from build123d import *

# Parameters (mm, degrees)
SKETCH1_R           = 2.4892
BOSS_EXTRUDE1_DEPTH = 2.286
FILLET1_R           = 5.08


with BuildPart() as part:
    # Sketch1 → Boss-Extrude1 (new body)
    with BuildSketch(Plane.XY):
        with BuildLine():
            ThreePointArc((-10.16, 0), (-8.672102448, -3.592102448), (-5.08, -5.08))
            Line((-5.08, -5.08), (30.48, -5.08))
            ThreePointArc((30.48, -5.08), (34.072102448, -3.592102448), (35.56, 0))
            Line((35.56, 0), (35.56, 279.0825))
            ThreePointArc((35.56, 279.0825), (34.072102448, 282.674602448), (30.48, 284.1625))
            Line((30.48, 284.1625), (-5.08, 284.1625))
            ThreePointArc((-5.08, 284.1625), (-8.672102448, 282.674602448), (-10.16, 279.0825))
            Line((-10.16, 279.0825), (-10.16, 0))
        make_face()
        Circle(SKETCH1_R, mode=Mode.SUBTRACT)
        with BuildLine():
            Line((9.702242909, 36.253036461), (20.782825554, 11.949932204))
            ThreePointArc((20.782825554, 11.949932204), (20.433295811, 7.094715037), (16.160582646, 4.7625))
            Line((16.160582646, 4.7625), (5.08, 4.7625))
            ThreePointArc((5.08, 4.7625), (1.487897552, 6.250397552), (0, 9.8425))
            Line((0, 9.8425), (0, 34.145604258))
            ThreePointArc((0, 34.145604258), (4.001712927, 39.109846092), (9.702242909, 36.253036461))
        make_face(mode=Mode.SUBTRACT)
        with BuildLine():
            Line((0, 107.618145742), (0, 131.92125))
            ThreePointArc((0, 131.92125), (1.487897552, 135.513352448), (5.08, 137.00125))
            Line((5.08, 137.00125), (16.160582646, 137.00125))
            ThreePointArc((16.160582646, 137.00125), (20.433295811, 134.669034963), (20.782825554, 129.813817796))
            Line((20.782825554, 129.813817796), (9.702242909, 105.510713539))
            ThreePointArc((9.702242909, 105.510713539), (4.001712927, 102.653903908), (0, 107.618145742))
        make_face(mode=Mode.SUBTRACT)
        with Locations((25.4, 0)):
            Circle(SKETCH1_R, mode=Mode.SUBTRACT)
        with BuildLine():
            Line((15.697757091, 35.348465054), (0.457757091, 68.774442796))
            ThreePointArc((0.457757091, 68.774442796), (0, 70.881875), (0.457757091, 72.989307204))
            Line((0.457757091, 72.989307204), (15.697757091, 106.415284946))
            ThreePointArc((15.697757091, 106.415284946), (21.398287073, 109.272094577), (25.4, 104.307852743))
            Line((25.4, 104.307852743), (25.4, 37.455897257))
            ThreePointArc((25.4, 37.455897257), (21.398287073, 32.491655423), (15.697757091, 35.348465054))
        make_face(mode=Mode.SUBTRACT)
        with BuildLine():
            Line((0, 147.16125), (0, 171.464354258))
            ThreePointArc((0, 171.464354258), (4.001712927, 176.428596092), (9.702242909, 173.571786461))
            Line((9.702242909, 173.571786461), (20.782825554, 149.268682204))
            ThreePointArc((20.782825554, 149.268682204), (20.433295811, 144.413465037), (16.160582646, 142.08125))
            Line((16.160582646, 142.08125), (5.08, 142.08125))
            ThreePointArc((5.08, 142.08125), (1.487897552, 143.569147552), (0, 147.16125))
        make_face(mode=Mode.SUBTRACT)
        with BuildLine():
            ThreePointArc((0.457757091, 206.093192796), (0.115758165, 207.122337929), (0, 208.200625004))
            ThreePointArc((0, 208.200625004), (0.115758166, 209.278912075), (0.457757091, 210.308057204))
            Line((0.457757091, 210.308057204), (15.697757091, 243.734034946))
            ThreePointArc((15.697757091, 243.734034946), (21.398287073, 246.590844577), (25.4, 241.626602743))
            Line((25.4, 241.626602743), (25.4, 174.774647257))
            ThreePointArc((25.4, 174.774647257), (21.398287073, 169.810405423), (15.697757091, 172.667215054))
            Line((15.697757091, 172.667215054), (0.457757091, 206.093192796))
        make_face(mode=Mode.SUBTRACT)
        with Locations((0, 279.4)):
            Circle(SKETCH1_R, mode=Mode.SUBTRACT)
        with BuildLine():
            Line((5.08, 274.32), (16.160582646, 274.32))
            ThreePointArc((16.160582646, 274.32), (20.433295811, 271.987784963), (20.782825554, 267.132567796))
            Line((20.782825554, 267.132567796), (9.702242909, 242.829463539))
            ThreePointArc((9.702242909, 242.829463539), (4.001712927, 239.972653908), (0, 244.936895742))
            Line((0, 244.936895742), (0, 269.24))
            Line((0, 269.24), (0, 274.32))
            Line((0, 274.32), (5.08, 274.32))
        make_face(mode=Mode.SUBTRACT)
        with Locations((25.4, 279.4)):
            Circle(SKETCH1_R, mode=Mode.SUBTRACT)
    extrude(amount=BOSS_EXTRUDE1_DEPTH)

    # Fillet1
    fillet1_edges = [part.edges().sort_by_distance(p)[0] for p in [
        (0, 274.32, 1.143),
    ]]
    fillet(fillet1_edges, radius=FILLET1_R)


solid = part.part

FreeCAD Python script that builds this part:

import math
import FreeCAD as App
import Part
import Sketcher

V = App.Vector
Q = App.Units.Quantity


def edges_at(feature, points):
    """Names of the edges that pass closest to the given points."""
    edges = feature.Shape.Edges
    near = lambda p: min(range(len(edges)), key=lambda i: edges[i].distToShape(Part.Vertex(*p))[0])
    return sorted({f"Edge{near(p) + 1}" for p in points})

doc = App.newDocument("Part")
body = doc.addObject("PartDesign::Body", "Body")

# Sketch on XY plane
sketch1 = body.newObject("Sketcher::SketchObject", "Sketch")
sketch1.AttachmentSupport = (doc.getObject("XY_Plane"), [""])
sketch1.MapMode = "FlatFace"
sketch1.addGeometry(Part.ArcOfCircle(Part.Circle(V(-5.1, 0, 0), V(0, 0, 1), 5.1), math.radians(-180), math.radians(-90)), False)
sketch1.addGeometry(Part.LineSegment(V(-5.1, -5.1, 0), V(30.5, -5.1, 0)), False)
sketch1.addGeometry(Part.ArcOfCircle(Part.Circle(V(30.5, 0, 0), V(0, 0, 1), 5.1), math.radians(-90), math.radians(0)), False)
sketch1.addGeometry(Part.LineSegment(V(35.6, 0, 0), V(35.6, 279.1, 0)), False)
sketch1.addGeometry(Part.ArcOfCircle(Part.Circle(V(30.5, 279.1, 0), V(0, 0, 1), 5.1), math.radians(0), math.radians(90)), False)
sketch1.addGeometry(Part.LineSegment(V(30.5, 284.2, 0), V(-5.1, 284.2, 0)), False)
sketch1.addGeometry(Part.ArcOfCircle(Part.Circle(V(-5.1, 279.1, 0), V(0, 0, 1), 5.1), math.radians(90), math.radians(180)), False)
sketch1.addGeometry(Part.LineSegment(V(-10.2, 279.1, 0), V(-10.2, 0, 0)), False)
sketch1.addGeometry(Part.Circle(V(0, 0, 0), V(0, 0, 1), 2.5), False)
sketch1.addGeometry(Part.ArcOfCircle(Part.Circle(V(5.1, 34.1, 0), V(0, 0, 1), 5.1), math.radians(25), math.radians(180)), False)
sketch1.addGeometry(Part.LineSegment(V(9.7, 36.3, 0), V(20.8, 11.9, 0)), False)
sketch1.addGeometry(Part.ArcOfCircle(Part.Circle(V(16.2, 9.8, 0), V(0, 0, 1), 5.1), math.radians(-90), math.radians(25)), False)
sketch1.addGeometry(Part.LineSegment(V(16.2, 4.8, 0), V(5.1, 4.8, 0)), False)
sketch1.addGeometry(Part.ArcOfCircle(Part.Circle(V(5.1, 9.8, 0), V(0, 0, 1), 5.1), math.radians(-180), math.radians(-90)), False)
sketch1.addGeometry(Part.LineSegment(V(0, 9.8, 0), V(0, 34.1, 0)), False)
sketch1.addGeometry(Part.ArcOfCircle(Part.Circle(V(5.1, 107.6, 0), V(0, 0, 1), 5.1), math.radians(180), math.radians(335)), False)
sketch1.addGeometry(Part.LineSegment(V(0, 107.6, 0), V(0, 131.9, 0)), False)
sketch1.addGeometry(Part.ArcOfCircle(Part.Circle(V(5.1, 131.9, 0), V(0, 0, 1), 5.1), math.radians(90), math.radians(180)), False)
sketch1.addGeometry(Part.LineSegment(V(5.1, 137, 0), V(16.2, 137, 0)), False)
sketch1.addGeometry(Part.ArcOfCircle(Part.Circle(V(16.2, 131.9, 0), V(0, 0, 1), 5.1), math.radians(-25), math.radians(90)), False)
sketch1.addGeometry(Part.LineSegment(V(20.8, 129.8, 0), V(9.7, 105.5, 0)), False)
sketch1.addGeometry(Part.Circle(V(25.4, 0, 0), V(0, 0, 1), 2.5), False)
sketch1.addGeometry(Part.ArcOfCircle(Part.Circle(V(20.3, 37.5, 0), V(0, 0, 1), 5.1), math.radians(-155), math.radians(0)), False)
sketch1.addGeometry(Part.LineSegment(V(15.7, 35.3, 0), V(0.5, 68.8, 0)), False)
sketch1.addGeometry(Part.ArcOfCircle(Part.Circle(V(5.1, 70.9, 0), V(0, 0, 1), 5.1), math.radians(155), math.radians(205)), False)
sketch1.addGeometry(Part.LineSegment(V(0.5, 73, 0), V(15.7, 106.4, 0)), False)
sketch1.addGeometry(Part.ArcOfCircle(Part.Circle(V(20.3, 104.3, 0), V(0, 0, 1), 5.1), math.radians(0), math.radians(155)), False)
sketch1.addGeometry(Part.LineSegment(V(25.4, 104.3, 0), V(25.4, 37.5, 0)), False)
sketch1.addGeometry(Part.ArcOfCircle(Part.Circle(V(5.1, 147.2, 0), V(0, 0, 1), 5.1), math.radians(-180), math.radians(-90)), False)
sketch1.addGeometry(Part.LineSegment(V(0, 147.2, 0), V(0, 171.5, 0)), False)
sketch1.addGeometry(Part.ArcOfCircle(Part.Circle(V(5.1, 171.5, 0), V(0, 0, 1), 5.1), math.radians(25), math.radians(180)), False)
sketch1.addGeometry(Part.LineSegment(V(9.7, 173.6, 0), V(20.8, 149.3, 0)), False)
sketch1.addGeometry(Part.ArcOfCircle(Part.Circle(V(16.2, 147.2, 0), V(0, 0, 1), 5.1), math.radians(-90), math.radians(25)), False)
sketch1.addGeometry(Part.LineSegment(V(16.2, 142.1, 0), V(5.1, 142.1, 0)), False)
sketch1.addGeometry(Part.Circle(V(0, 279.4, 0), V(0, 0, 1), 2.5), False)
sketch1.addGeometry(Part.LineSegment(V(0, 274.3, 0), V(16.2, 274.3, 0)), False)
sketch1.addGeometry(Part.ArcOfCircle(Part.Circle(V(16.2, 269.2, 0), V(0, 0, 1), 5.1), math.radians(-25), math.radians(90)), False)
sketch1.addGeometry(Part.LineSegment(V(20.8, 267.1, 0), V(9.7, 242.8, 0)), False)
sketch1.addGeometry(Part.ArcOfCircle(Part.Circle(V(5.1, 244.9, 0), V(0, 0, 1), 5.1), math.radians(180), math.radians(335)), False)
sketch1.addGeometry(Part.LineSegment(V(0, 244.9, 0), V(0, 274.3, 0)), False)
sketch1.addGeometry(Part.LineSegment(V(15.7, 172.7, 0), V(0.5, 206.1, 0)), False)
sketch1.addGeometry(Part.ArcOfCircle(Part.Circle(V(5.1, 208.2, 0), V(0, 0, 1), 5.1), math.radians(180), math.radians(205)), False)
sketch1.addGeometry(Part.ArcOfCircle(Part.Circle(V(5.1, 208.2, 0), V(0, 0, 1), 5.1), math.radians(155), math.radians(180)), False)
sketch1.addGeometry(Part.LineSegment(V(0.5, 210.3, 0), V(15.7, 243.7, 0)), False)
sketch1.addGeometry(Part.ArcOfCircle(Part.Circle(V(20.3, 241.6, 0), V(0, 0, 1), 5.1), math.radians(0), math.radians(155)), False)
sketch1.addGeometry(Part.LineSegment(V(25.4, 241.6, 0), V(25.4, 174.8, 0)), False)
sketch1.addGeometry(Part.ArcOfCircle(Part.Circle(V(20.3, 174.8, 0), V(0, 0, 1), 5.1), math.radians(-155), math.radians(0)), False)
sketch1.addGeometry(Part.Circle(V(25.4, 279.4, 0), V(0, 0, 1), 2.5), False)
sketch1.addConstraint(Sketcher.Constraint("Tangent", 0, 2, 1, 1))
sketch1.addConstraint(Sketcher.Constraint("Tangent", 1, 2, 2, 1))
sketch1.addConstraint(Sketcher.Constraint("Tangent", 2, 2, 3, 1))
sketch1.addConstraint(Sketcher.Constraint("Tangent", 3, 2, 4, 1))
sketch1.addConstraint(Sketcher.Constraint("Tangent", 4, 2, 5, 1))
sketch1.addConstraint(Sketcher.Constraint("Tangent", 5, 2, 6, 1))
sketch1.addConstraint(Sketcher.Constraint("Tangent", 6, 2, 7, 1))
sketch1.addConstraint(Sketcher.Constraint("Tangent", 7, 2, 0, 1))
sketch1.addConstraint(Sketcher.Constraint("Tangent", 9, 1, 10, 1))
sketch1.addConstraint(Sketcher.Constraint("Tangent", 10, 2, 11, 2))
sketch1.addConstraint(Sketcher.Constraint("Tangent", 11, 1, 12, 1))
sketch1.addConstraint(Sketcher.Constraint("Tangent", 12, 2, 13, 2))
sketch1.addConstraint(Sketcher.Constraint("Tangent", 13, 1, 14, 1))
sketch1.addConstraint(Sketcher.Constraint("Tangent", 14, 2, 9, 2))
sketch1.addConstraint(Sketcher.Constraint("Tangent", 15, 1, 16, 1))
sketch1.addConstraint(Sketcher.Constraint("Tangent", 16, 2, 17, 2))
sketch1.addConstraint(Sketcher.Constraint("Tangent", 17, 1, 18, 1))
sketch1.addConstraint(Sketcher.Constraint("Tangent", 18, 2, 19, 2))
sketch1.addConstraint(Sketcher.Constraint("Tangent", 19, 1, 20, 1))
sketch1.addConstraint(Sketcher.Constraint("Tangent", 20, 2, 15, 2))
sketch1.addConstraint(Sketcher.Constraint("Tangent", 22, 1, 23, 1))
sketch1.addConstraint(Sketcher.Constraint("Tangent", 23, 2, 24, 2))
sketch1.addConstraint(Sketcher.Constraint("Tangent", 24, 1, 25, 1))
sketch1.addConstraint(Sketcher.Constraint("Tangent", 25, 2, 26, 2))
sketch1.addConstraint(Sketcher.Constraint("Tangent", 26, 1, 27, 1))
sketch1.addConstraint(Sketcher.Constraint("Tangent", 27, 2, 22, 2))
sketch1.addConstraint(Sketcher.Constraint("Tangent", 28, 1, 29, 1))
sketch1.addConstraint(Sketcher.Constraint("Tangent", 29, 2, 30, 2))
sketch1.addConstraint(Sketcher.Constraint("Tangent", 30, 1, 31, 1))
sketch1.addConstraint(Sketcher.Constraint("Tangent", 31, 2, 32, 2))
sketch1.addConstraint(Sketcher.Constraint("Tangent", 32, 1, 33, 1))
sketch1.addConstraint(Sketcher.Constraint("Tangent", 33, 2, 28, 2))
sketch1.addConstraint(Sketcher.Constraint("Tangent", 35, 2, 36, 2))
sketch1.addConstraint(Sketcher.Constraint("Tangent", 36, 1, 37, 1))
sketch1.addConstraint(Sketcher.Constraint("Tangent", 37, 2, 38, 2))
sketch1.addConstraint(Sketcher.Constraint("Tangent", 38, 1, 39, 1))
sketch1.addConstraint(Sketcher.Constraint("Coincident", 39, 2, 35, 1))
sketch1.addConstraint(Sketcher.Constraint("Tangent", 40, 2, 41, 2))
sketch1.addConstraint(Sketcher.Constraint("Tangent", 41, 1, 42, 2))
sketch1.addConstraint(Sketcher.Constraint("Tangent", 42, 1, 43, 1))
sketch1.addConstraint(Sketcher.Constraint("Tangent", 43, 2, 44, 2))
sketch1.addConstraint(Sketcher.Constraint("Tangent", 44, 1, 45, 1))
sketch1.addConstraint(Sketcher.Constraint("Tangent", 45, 2, 46, 2))
sketch1.addConstraint(Sketcher.Constraint("Tangent", 46, 1, 40, 1))
sketch1.addConstraint(Sketcher.Constraint("Horizontal", 1))
sketch1.addConstraint(Sketcher.Constraint("Vertical", 3))
sketch1.addConstraint(Sketcher.Constraint("Horizontal", 5))
sketch1.addConstraint(Sketcher.Constraint("Vertical", 7))
sketch1.addConstraint(Sketcher.Constraint("Horizontal", 12))
sketch1.addConstraint(Sketcher.Constraint("Vertical", 14))
sketch1.addConstraint(Sketcher.Constraint("Vertical", 16))
sketch1.addConstraint(Sketcher.Constraint("Horizontal", 18))
sketch1.addConstraint(Sketcher.Constraint("Vertical", 27))
sketch1.addConstraint(Sketcher.Constraint("Vertical", 29))
sketch1.addConstraint(Sketcher.Constraint("Horizontal", 33))
sketch1.addConstraint(Sketcher.Constraint("Horizontal", 35))
sketch1.addConstraint(Sketcher.Constraint("Vertical", 39))
sketch1.addConstraint(Sketcher.Constraint("Vertical", 45))
sketch1.addConstraint(Sketcher.Constraint("Coincident", 8, 3, -1, 1))
sketch1.addConstraint(Sketcher.Constraint("Equal", 0, 2))
sketch1.addConstraint(Sketcher.Constraint("Equal", 2, 4))
sketch1.addConstraint(Sketcher.Constraint("Equal", 4, 6))
sketch1.addConstraint(Sketcher.Constraint("Equal", 6, 9))
sketch1.addConstraint(Sketcher.Constraint("Equal", 9, 11))
sketch1.addConstraint(Sketcher.Constraint("Equal", 11, 13))
sketch1.addConstraint(Sketcher.Constraint("Equal", 13, 15))
sketch1.addConstraint(Sketcher.Constraint("Equal", 15, 17))
sketch1.addConstraint(Sketcher.Constraint("Equal", 17, 19))
sketch1.addConstraint(Sketcher.Constraint("Equal", 8, 21))
sketch1.addConstraint(Sketcher.Constraint("Equal", 19, 22))
sketch1.addConstraint(Sketcher.Constraint("Equal", 22, 24))
sketch1.addConstraint(Sketcher.Constraint("Equal", 24, 26))
sketch1.addConstraint(Sketcher.Constraint("Equal", 26, 28))
sketch1.addConstraint(Sketcher.Constraint("Equal", 28, 30))
sketch1.addConstraint(Sketcher.Constraint("Equal", 30, 32))
sketch1.addConstraint(Sketcher.Constraint("Equal", 21, 34))
sketch1.addConstraint(Sketcher.Constraint("Equal", 32, 36))
sketch1.addConstraint(Sketcher.Constraint("Equal", 36, 38))
sketch1.addConstraint(Sketcher.Constraint("Equal", 38, 41))
sketch1.addConstraint(Sketcher.Constraint("Equal", 41, 42))
sketch1.addConstraint(Sketcher.Constraint("Equal", 42, 44))
sketch1.addConstraint(Sketcher.Constraint("Equal", 44, 46))
sketch1.addConstraint(Sketcher.Constraint("Equal", 34, 47))
sketch1.addConstraint(Sketcher.Constraint("PointOnObject", 0, 3, -1))
sketch1.addConstraint(Sketcher.Constraint("PointOnObject", 21, 3, -1))
sketch1.addConstraint(Sketcher.Constraint("PointOnObject", 34, 3, -2))
sketch1.addConstraint(Sketcher.Constraint("PointOnObject", 13, 1, -2))
sketch1.addConstraint(Sketcher.Constraint("PointOnObject", 15, 1, -2))
sketch1.addConstraint(Sketcher.Constraint("PointOnObject", 28, 1, -2))
sketch1.addConstraint(Sketcher.Constraint("PointOnObject", 38, 1, -2))
sketch1.addConstraint(Sketcher.Constraint("PointOnObject", 41, 1, -2))
sketch1.addConstraint(Sketcher.Constraint("Parallel", 10, 23))
sketch1.addConstraint(Sketcher.Constraint("Parallel", 20, 25))
sketch1.addConstraint(Sketcher.Constraint("Parallel", 23, 31))
sketch1.addConstraint(Sketcher.Constraint("Parallel", 25, 37))
sketch1.addConstraint(Sketcher.Constraint("Parallel", 31, 40))
sketch1.addConstraint(Sketcher.Constraint("Parallel", 37, 43))
sketch1.addConstraint(Sketcher.Constraint("Horizontal", 34, 3, 47, 3))
sketch1.addConstraint(Sketcher.Constraint("Horizontal", 42, 3, 41, 1))
sketch1.addConstraint(Sketcher.Constraint("Vertical", 11, 3, 19, 3))
sketch1.addConstraint(Sketcher.Constraint("Vertical", 17, 3, 24, 3))
sketch1.addConstraint(Sketcher.Constraint("Vertical", 19, 3, 32, 3))
sketch1.addConstraint(Sketcher.Constraint("Vertical", 32, 3, 36, 3))
sketch1.addConstraint(Sketcher.Constraint("Vertical", 26, 3, 44, 3))
sketch1.addConstraint(Sketcher.Constraint("Vertical", 21, 3, 47, 3))
sketch1.addConstraint(Sketcher.Constraint("Vertical", 10, 2, 19, 1))
sketch1.addConstraint(Sketcher.Constraint("Vertical", 47, 3, 26, 1))
sketch1.addConstraint(Sketcher.Constraint("Radius", 0, Q("0.2 in")))
sketch1.addConstraint(Sketcher.Constraint("Diameter", 8, Q("0.196 in")))
sketch1.addConstraint(Sketcher.Constraint("DistanceX", 1, 1, 1, 2, Q("1.4 in")))
sketch1.addConstraint(Sketcher.Constraint("DistanceX", -1, 1, 21, 3, Q("1 in")))
sketch1.addConstraint(Sketcher.Constraint("DistanceY", -1, 1, 34, 3, Q("11 in")))
sketch1.addConstraint(Sketcher.Constraint("DistanceX", 0, 3, -1, 1, Q("0.2 in")))
sketch1.addConstraint(Sketcher.Constraint("DistanceY", -1, 1, 36, 3, Q("10.6 in")))
sketch1.addConstraint(Sketcher.Constraint("DistanceY", 3, 1, 3, 2, Q("10.9875 in")))
sketch1.addConstraint(Sketcher.Constraint("DistanceY", -1, 1, 11, 1, Q("0.1875 in")))
sketch1.addConstraint(Sketcher.Constraint("DistanceY", -1, 1, 32, 1, Q("5.59375 in")))
sketch1.addConstraint(Sketcher.Constraint("Distance", 23, Q("36.736271 mm")))
sketch1.addConstraint(Sketcher.Constraint("DistanceX", 12, 2, 12, 1, Q("11.080583 mm")))
sketch1.addConstraint(Sketcher.Constraint("DistanceY", -1, 1, 17, 3, Q("131.92125 mm")))
sketch1.addConstraint(Sketcher.Constraint("DistanceY", -1, 1, 22, 3, Q("37.455897 mm")))
sketch1.addConstraint(Sketcher.Constraint("DistanceY", -1, 1, 41, 3, Q("208.200625 mm")))
pad1 = body.newObject("PartDesign::Pad", "Pad")
pad1.Profile = sketch1
pad1.Length = Q("0.09 in")
doc.recompute()

fillet = body.newObject("PartDesign::Fillet", "Fillet")
fillet.Base = (pad1, edges_at(pad1, [(0, 274.32, 1.143)]))
fillet.Radius = Q("0.2 in")

doc.recompute()
